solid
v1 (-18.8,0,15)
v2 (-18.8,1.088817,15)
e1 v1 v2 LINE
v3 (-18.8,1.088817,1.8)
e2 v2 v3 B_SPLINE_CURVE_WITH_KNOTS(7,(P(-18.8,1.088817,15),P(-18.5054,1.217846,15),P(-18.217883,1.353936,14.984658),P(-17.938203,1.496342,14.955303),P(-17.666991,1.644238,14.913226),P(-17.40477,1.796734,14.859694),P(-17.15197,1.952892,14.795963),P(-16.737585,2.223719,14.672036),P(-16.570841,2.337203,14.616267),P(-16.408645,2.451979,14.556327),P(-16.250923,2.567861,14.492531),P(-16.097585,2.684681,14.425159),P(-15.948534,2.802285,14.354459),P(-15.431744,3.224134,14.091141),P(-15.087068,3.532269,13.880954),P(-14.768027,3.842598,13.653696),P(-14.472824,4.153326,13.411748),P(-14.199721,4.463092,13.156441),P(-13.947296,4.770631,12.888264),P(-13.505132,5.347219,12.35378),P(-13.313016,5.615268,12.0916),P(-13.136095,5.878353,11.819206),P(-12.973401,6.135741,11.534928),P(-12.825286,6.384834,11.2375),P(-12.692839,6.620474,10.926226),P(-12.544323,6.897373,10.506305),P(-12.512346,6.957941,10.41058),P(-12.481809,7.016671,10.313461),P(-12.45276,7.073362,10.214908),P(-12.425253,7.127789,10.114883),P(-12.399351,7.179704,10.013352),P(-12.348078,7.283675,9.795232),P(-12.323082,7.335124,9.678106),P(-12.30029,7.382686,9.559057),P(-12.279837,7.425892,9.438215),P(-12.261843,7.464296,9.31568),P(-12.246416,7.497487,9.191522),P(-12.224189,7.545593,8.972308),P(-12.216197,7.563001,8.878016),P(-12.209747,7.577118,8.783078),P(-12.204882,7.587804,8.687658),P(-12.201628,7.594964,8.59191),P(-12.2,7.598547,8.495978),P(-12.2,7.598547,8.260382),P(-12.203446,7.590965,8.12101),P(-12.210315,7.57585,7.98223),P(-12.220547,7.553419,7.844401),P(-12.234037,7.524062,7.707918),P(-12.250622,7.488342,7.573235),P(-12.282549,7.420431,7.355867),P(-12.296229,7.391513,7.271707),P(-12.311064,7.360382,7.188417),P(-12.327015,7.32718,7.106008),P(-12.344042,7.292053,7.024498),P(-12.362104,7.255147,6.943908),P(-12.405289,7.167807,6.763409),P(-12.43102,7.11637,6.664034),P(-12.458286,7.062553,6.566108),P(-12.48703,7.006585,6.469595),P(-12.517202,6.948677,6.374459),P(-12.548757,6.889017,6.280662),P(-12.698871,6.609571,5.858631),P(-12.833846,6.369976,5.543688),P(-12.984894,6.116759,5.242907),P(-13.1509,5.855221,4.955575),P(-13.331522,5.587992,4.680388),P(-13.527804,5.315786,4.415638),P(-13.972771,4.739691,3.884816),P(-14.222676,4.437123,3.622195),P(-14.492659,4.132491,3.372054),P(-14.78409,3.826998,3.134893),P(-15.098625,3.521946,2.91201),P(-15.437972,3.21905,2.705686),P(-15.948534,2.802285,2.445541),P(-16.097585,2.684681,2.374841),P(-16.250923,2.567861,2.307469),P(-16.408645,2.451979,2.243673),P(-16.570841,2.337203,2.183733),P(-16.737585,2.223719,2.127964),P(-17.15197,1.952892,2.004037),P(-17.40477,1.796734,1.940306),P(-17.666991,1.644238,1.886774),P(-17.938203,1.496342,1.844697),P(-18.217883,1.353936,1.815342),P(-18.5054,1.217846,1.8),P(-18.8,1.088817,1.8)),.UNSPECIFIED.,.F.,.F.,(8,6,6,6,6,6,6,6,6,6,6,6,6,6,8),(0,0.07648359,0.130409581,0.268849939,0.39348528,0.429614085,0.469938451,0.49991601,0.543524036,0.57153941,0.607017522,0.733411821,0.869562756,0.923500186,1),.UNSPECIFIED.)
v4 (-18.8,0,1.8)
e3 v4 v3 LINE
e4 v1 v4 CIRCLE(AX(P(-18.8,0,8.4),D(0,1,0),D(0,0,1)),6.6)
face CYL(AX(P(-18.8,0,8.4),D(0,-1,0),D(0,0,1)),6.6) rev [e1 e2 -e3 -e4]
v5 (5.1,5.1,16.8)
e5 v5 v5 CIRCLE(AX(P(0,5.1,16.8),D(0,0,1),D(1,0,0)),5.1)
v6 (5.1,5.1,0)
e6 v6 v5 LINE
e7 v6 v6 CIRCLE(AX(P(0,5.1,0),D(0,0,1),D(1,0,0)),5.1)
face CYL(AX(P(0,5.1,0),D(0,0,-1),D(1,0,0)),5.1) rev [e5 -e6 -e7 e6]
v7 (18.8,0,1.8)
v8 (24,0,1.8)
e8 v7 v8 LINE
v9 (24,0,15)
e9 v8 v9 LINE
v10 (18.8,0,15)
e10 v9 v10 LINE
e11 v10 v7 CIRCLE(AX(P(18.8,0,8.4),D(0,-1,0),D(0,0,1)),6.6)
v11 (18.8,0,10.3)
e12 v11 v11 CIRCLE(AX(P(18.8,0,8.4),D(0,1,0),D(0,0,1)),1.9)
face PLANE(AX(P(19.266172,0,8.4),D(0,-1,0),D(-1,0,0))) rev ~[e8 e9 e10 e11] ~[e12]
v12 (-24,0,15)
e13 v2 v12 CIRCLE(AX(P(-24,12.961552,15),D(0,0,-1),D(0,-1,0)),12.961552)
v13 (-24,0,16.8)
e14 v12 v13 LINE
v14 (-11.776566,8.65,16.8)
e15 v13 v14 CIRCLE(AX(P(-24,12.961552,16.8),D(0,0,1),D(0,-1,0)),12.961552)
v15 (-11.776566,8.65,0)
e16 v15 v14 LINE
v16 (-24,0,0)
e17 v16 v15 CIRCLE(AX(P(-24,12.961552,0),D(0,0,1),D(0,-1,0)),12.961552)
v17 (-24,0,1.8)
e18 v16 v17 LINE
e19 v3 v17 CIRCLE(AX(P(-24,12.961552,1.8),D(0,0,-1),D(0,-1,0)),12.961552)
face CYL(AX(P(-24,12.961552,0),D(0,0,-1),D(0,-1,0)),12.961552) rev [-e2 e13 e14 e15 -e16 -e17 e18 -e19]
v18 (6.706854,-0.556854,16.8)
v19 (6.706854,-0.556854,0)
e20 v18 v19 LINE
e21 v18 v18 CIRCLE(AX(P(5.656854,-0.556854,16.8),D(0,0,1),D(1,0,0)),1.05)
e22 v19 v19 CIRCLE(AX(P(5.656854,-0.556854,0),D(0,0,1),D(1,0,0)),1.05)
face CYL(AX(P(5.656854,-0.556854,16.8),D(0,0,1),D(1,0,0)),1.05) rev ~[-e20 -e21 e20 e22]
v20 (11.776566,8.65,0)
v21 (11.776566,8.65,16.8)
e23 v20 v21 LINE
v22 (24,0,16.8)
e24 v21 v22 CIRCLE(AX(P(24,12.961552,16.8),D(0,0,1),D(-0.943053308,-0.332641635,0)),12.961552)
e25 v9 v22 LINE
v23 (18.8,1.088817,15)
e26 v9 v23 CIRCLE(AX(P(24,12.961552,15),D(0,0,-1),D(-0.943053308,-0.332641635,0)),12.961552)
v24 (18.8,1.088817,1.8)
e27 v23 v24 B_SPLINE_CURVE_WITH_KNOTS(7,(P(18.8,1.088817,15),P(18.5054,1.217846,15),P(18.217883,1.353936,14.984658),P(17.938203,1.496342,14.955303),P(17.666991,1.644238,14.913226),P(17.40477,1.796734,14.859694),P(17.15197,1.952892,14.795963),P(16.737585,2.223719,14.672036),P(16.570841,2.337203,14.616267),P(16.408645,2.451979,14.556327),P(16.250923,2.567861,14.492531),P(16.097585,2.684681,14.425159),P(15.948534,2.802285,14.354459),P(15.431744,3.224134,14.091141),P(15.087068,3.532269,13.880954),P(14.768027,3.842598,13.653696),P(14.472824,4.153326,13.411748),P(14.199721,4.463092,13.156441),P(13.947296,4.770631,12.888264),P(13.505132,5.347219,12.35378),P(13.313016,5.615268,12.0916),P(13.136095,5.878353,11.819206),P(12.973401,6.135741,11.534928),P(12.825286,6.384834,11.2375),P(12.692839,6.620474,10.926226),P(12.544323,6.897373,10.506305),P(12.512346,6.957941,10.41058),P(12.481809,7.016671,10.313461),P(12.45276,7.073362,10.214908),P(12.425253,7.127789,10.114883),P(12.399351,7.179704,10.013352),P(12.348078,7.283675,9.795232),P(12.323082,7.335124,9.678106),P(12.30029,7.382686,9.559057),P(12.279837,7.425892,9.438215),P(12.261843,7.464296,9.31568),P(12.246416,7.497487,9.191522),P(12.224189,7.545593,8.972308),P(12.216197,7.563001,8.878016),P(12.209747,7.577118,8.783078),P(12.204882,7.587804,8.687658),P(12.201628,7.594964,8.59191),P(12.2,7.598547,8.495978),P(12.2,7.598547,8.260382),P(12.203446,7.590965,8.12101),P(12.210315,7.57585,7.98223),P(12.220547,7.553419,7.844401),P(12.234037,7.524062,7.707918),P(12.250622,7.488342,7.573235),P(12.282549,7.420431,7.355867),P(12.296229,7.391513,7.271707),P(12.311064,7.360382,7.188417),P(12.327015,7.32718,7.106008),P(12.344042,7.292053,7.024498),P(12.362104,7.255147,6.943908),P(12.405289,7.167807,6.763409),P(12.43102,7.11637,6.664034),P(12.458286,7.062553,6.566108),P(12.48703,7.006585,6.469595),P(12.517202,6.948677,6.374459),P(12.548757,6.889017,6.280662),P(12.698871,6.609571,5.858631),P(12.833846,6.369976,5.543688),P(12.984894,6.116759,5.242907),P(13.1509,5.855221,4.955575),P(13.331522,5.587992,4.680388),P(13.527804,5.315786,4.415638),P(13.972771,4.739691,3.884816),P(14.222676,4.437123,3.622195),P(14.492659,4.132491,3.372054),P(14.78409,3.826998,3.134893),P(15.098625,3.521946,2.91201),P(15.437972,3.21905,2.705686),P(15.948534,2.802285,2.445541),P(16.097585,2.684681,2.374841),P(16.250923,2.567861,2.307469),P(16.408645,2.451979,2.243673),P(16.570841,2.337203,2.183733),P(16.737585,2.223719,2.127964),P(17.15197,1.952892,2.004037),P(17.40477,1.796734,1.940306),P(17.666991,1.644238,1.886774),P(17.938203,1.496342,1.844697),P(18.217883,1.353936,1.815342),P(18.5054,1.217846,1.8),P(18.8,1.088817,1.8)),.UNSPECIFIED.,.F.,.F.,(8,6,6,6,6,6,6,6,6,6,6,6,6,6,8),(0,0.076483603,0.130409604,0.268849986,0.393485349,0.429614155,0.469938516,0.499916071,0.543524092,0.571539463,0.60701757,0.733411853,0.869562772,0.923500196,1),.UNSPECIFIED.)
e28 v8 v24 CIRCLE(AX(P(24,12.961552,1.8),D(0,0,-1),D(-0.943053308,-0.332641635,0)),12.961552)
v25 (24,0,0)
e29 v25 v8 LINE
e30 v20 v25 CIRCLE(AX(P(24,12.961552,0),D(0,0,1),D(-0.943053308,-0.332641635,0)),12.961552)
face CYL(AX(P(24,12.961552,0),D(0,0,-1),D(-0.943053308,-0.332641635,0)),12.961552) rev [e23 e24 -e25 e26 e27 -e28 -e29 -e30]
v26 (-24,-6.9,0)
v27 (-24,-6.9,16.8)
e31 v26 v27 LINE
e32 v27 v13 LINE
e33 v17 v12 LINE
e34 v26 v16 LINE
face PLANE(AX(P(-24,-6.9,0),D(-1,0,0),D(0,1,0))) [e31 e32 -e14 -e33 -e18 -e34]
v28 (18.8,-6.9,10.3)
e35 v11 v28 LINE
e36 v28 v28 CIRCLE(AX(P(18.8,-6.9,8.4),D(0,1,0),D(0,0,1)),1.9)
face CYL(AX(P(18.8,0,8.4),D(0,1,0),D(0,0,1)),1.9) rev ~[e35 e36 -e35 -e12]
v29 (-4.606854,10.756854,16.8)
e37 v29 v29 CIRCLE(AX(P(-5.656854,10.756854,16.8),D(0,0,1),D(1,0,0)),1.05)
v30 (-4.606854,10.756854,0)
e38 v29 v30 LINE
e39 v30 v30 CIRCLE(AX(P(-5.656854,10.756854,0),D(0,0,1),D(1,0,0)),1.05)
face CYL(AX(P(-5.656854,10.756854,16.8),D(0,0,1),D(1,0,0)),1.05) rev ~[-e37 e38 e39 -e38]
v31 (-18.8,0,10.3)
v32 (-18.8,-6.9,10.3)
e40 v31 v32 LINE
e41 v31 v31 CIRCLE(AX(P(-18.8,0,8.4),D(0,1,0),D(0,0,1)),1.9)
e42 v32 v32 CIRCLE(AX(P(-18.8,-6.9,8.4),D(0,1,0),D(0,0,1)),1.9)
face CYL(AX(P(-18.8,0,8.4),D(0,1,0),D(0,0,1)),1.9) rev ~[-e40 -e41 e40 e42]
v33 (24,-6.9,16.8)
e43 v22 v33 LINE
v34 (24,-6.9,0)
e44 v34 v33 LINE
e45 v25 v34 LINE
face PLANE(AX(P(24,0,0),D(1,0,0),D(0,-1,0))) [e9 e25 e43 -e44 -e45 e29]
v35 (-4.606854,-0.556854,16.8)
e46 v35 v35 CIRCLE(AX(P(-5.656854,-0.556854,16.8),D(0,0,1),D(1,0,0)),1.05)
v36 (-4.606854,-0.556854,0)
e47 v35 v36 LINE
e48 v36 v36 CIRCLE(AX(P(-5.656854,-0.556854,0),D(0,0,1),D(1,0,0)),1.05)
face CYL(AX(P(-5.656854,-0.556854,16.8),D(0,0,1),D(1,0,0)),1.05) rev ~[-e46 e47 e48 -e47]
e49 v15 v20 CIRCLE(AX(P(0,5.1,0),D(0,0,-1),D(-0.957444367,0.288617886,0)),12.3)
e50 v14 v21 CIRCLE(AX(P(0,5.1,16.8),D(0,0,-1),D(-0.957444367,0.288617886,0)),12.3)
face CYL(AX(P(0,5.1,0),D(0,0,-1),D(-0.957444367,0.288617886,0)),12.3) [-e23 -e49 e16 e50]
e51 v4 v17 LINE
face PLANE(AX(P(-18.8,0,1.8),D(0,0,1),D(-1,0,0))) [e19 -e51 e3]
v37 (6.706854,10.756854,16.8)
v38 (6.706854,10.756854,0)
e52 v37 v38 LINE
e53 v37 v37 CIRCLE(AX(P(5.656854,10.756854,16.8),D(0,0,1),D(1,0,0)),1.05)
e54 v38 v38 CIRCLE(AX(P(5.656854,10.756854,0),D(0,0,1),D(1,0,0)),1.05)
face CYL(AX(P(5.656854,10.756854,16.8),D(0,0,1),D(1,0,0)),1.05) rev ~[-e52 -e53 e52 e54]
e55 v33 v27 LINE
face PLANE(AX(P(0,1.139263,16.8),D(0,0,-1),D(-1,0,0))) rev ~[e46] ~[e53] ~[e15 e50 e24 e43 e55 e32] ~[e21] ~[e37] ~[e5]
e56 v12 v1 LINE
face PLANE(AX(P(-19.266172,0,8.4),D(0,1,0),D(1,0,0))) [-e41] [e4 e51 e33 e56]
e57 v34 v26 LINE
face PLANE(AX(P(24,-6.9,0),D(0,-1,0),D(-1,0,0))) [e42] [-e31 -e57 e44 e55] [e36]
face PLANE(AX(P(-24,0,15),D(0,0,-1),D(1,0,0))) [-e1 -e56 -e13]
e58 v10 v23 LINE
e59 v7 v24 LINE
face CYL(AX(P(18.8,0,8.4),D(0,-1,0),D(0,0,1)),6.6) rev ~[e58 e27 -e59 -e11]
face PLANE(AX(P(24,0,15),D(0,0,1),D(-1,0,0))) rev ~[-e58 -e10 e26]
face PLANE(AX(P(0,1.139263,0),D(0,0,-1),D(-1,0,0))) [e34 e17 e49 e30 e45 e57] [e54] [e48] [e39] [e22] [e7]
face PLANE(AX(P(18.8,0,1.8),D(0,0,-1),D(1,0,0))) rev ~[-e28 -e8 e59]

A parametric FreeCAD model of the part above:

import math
import FreeCAD as App
import Part
import Sketcher
Q = App.Units.Quantity

doc = App.newDocument("Part")
params = doc.addObject("Spreadsheet::Sheet", "Params")
for row, (alias, value) in enumerate([
    ("sketch1_diameter", "10.2 mm"),
    ("sketch1_radius", "12.3 mm"),
    ("sketch1_width", "48 mm"),
    ("sketch1_height", "6.9 mm"),
    ("pad1_length", "16.8 mm"),
    ("sketch2_diameter", "2.1 mm"),
    ("sketch3_radius", "6.6 mm"),
    ("sketch3_width", "5.2 mm"),
    ("sketch4_diameter", "3.8 mm"),
], start=1):
    params.set(f"A{row}", alias)
    params.set(f"B{row}", "=" + value)
    params.setAlias(f"B{row}", alias)

body = doc.addObject("PartDesign::Body", "Body")

sketch1 = body.newObject("Sketcher::SketchObject", "Sketch")
sketch1.AttachmentSupport = (doc.getObject("XY_Plane"), [""])
sketch1.MapMode = "FlatFace"
sketch1.addGeometry([
    Part.LineSegment(App.Vector(24, -7, 0), App.Vector(24, 0, 0)),
    Part.ArcOfCircle(Part.Circle(App.Vector(24, 13, 0), App.Vector(0, 0, 1), 13), math.radians(-161), math.radians(-90)),
    Part.ArcOfCircle(Part.Circle(App.Vector(0, 5, 0), App.Vector(0, 0, 1), 12), math.radians(17), math.radians(163)),
    Part.ArcOfCircle(Part.Circle(App.Vector(-24, 13, 0), App.Vector(0, 0, 1), 13), math.radians(-90), math.radians(-19)),
    Part.LineSegment(App.Vector(-24, 0, 0), App.Vector(-24, -7, 0)),
    Part.LineSegment(App.Vector(-24, -7, 0), App.Vector(24, -7, 0)),
    Part.Circle(App.Vector(0, 5, 0), App.Vector(0, 0, 1), 5),
], False)
sketch1.addConstraint([
    Sketcher.Constraint("Coincident", 0, 2, 1, 2),
    Sketcher.Constraint("Coincident", 1, 1, 2, 1),
    Sketcher.Constraint("Coincident", 2, 2, 3, 2),
    Sketcher.Constraint("Coincident", 3, 1, 4, 1),
    Sketcher.Constraint("Coincident", 4, 2, 5, 1),
    Sketcher.Constraint("Coincident", 5, 2, 0, 1),
    Sketcher.Constraint("Vertical", 0),
    Sketcher.Constraint("Vertical", 4),
    Sketcher.Constraint("Horizontal", 5),
    Sketcher.Constraint("Coincident", 6, 3, 2, 3),
    Sketcher.Constraint("Equal", 1, 3),
    Sketcher.Constraint("Symmetric", 0, 2, 3, 1, -1, 1),
    Sketcher.Constraint("Symmetric", 1, 3, 3, 3, -2),
    Sketcher.Constraint("PointOnObject", 2, 3, -2),
    Sketcher.Constraint("Vertical", 1, 3, 0, 2),
    Sketcher.Constraint("Diameter", 6, Q("10.2 mm")),
    Sketcher.Constraint("Radius", 2, Q("12.3 mm")),
    Sketcher.Constraint("DistanceX", 5, 1, 5, 2, Q("48 mm")),
    Sketcher.Constraint("DistanceY", 0, 1, 0, 2, Q("6.9 mm")),
    Sketcher.Constraint("DistanceY", 4, 2, 2, 3, Q("12 mm")),
    Sketcher.Constraint("DistanceY", -1, 1, 1, 1, Q("8.65 mm")),
])
sketch1.setExpression("Constraints[15]", "Params.sketch1_diameter")
sketch1.setExpression("Constraints[16]", "Params.sketch1_radius")
sketch1.setExpression("Constraints[17]", "Params.sketch1_width")
sketch1.setExpression("Constraints[18]", "Params.sketch1_height")
pad1 = body.newObject("PartDesign::Pad", "Pad")
pad1.Profile = sketch1
pad1.setExpression("Length", "Params.pad1_length")

sketch2 = body.newObject("Sketcher::SketchObject", "Sketch001")
sketch2.AttachmentSupport = (doc.getObject("XY_Plane"), [""])
sketch2.MapMode = "FlatFace"
sketch2.AttachmentOffset = App.Placement(App.Vector(0, 0, 16.8), App.Rotation())
sketch2.addGeometry([
    Part.Circle(App.Vector(5.7, 10.8, 0), App.Vector(0, 0, 1), 1.1),
    Part.Circle(App.Vector(5.7, -0.6, 0), App.Vector(0, 0, 1), 1.1),
    Part.Circle(App.Vector(-5.7, -0.6, 0), App.Vector(0, 0, 1), 1.1),
    Part.Circle(App.Vector(-5.7, 10.8, 0), App.Vector(0, 0, 1), 1.1),
], False)
sketch2.addConstraint([
    Sketcher.Constraint("Equal", 0, 1),
    Sketcher.Constraint("Equal", 1, 2),
    Sketcher.Constraint("Equal", 2, 3),
    Sketcher.Constraint("Symmetric", 1, 3, 2, 3, -2),
    Sketcher.Constraint("Symmetric", 0, 3, 3, 3, -2),
    Sketcher.Constraint("Vertical", 0, 3, 1, 3),
    Sketcher.Constraint("Diameter", 0, Q("2.1 mm")),
    Sketcher.Constraint("DistanceY", 1, 3, 0, 3, Q("11.313708 mm")),
    Sketcher.Constraint("DistanceX", 2, 3, 1, 3, Q("11.313708 mm")),
    Sketcher.Constraint("DistanceY", -1, 1, 0, 3, Q("10.756854 mm")),
])
sketch2.setExpression("Constraints[6]", "Params.sketch2_diameter")
pocket1 = body.newObject("PartDesign::Pocket", "Pocket")
pocket1.Profile = sketch2
pocket1.Type = "ThroughAll"

sketch3 = body.newObject("Sketcher::SketchObject", "Sketch002")
sketch3.AttachmentSupport = (doc.getObject("XZ_Plane"), [""])
sketch3.MapMode = "FlatFace"
sketch3.addGeometry([
    Part.LineSegment(App.Vector(-24, 2, 0), App.Vector(-24, 15, 0)),
    Part.LineSegment(App.Vector(-24, 15, 0), App.Vector(-19, 15, 0)),
    Part.ArcOfCircle(Part.Circle(App.Vector(-19, 8, 0), App.Vector(0, 0, 1), 7), math.radians(-90), math.radians(90)),
    Part.LineSegment(App.Vector(-19, 2, 0), App.Vector(-24, 2, 0)),
    Part.LineSegment(App.Vector(19, 15, 0), App.Vector(24, 15, 0)),
    Part.LineSegment(App.Vector(24, 15, 0), App.Vector(24, 2, 0)),
    Part.LineSegment(App.Vector(24, 2, 0), App.Vector(19, 2, 0)),
    Part.ArcOfCircle(Part.Circle(App.Vector(19, 8, 0), App.Vector(0, 0, 1), 7), math.radians(90), math.radians(270)),
], False)
sketch3.addConstraint([
    Sketcher.Constraint("Coincident", 0, 2, 1, 1),
    Sketcher.Constraint("Tangent", 1, 2, 2, 2),
    Sketcher.Constraint("Tangent", 2, 1, 3, 1),
    Sketcher.Constraint("Coincident", 3, 2, 0, 1),
    Sketcher.Constraint("Coincident", 4, 2, 5, 1),
    Sketcher.Constraint("Coincident", 5, 2, 6, 1),
    Sketcher.Constraint("Tangent", 6, 2, 7, 2),
    Sketcher.Constraint("Tangent", 7, 1, 4, 1),
    Sketcher.Constraint("Vertical", 0),
    Sketcher.Constraint("Horizontal", 1),
    Sketcher.Constraint("Horizontal", 3),
    Sketcher.Constraint("Horizontal", 4),
    Sketcher.Constraint("Vertical", 5),
    Sketcher.Constraint("Horizontal", 6),
    Sketcher.Constraint("Equal", 2, 7),
    Sketcher.Constraint("Symmetric", 2, 3, 7, 3, -2),
    Sketcher.Constraint("Equal", 3, 4),
    Sketcher.Constraint("Radius", 2, Q("6.6 mm")),
    Sketcher.Constraint("DistanceX", 1, 1, 1, 2, Q("5.2 mm")),
    Sketcher.Constraint("DistanceX", 0, 2, -1, 1, Q("24 mm")),
    Sketcher.Constraint("DistanceY", -1, 1, 0, 2, Q("15 mm")),
])
sketch3.setExpression("Constraints[17]", "Params.sketch3_radius")
sketch3.setExpression("Constraints[18]", "Params.sketch3_width")
pocket2 = body.newObject("PartDesign::Pocket", "Pocket001")
pocket2.Profile = sketch3
pocket2.Type = "ThroughAll"

sketch4 = body.newObject("Sketcher::SketchObject", "Sketch003")
sketch4.AttachmentSupport = (doc.getObject("XZ_Plane"), [""])
sketch4.MapMode = "FlatFace"
sketch4.addGeometry([
    Part.Circle(App.Vector(-18.8, 8.4, 0), App.Vector(0, 0, 1), 1.9),
    Part.Circle(App.Vector(18.8, 8.4, 0), App.Vector(0, 0, 1), 1.9),
], False)
sketch4.addConstraint([
    Sketcher.Constraint("Equal", 0, 1),
    Sketcher.Constraint("Symmetric", 0, 3, 1, 3, -2),
    Sketcher.Constraint("Diameter", 0, Q("3.8 mm")),
    Sketcher.Constraint("DistanceX", 0, 3, -1, 1, Q("18.8 mm")),
    Sketcher.Constraint("DistanceY", -1, 1, 0, 3, Q("8.4 mm")),
])
sketch4.setExpression("Constraints[2]", "Params.sketch4_diameter")
pocket3 = body.newObject("PartDesign::Pocket", "Pocket002")
pocket3.Profile = sketch4
pocket3.Type = "ThroughAll"
pocket3.Reversed = True

doc.recompute()
